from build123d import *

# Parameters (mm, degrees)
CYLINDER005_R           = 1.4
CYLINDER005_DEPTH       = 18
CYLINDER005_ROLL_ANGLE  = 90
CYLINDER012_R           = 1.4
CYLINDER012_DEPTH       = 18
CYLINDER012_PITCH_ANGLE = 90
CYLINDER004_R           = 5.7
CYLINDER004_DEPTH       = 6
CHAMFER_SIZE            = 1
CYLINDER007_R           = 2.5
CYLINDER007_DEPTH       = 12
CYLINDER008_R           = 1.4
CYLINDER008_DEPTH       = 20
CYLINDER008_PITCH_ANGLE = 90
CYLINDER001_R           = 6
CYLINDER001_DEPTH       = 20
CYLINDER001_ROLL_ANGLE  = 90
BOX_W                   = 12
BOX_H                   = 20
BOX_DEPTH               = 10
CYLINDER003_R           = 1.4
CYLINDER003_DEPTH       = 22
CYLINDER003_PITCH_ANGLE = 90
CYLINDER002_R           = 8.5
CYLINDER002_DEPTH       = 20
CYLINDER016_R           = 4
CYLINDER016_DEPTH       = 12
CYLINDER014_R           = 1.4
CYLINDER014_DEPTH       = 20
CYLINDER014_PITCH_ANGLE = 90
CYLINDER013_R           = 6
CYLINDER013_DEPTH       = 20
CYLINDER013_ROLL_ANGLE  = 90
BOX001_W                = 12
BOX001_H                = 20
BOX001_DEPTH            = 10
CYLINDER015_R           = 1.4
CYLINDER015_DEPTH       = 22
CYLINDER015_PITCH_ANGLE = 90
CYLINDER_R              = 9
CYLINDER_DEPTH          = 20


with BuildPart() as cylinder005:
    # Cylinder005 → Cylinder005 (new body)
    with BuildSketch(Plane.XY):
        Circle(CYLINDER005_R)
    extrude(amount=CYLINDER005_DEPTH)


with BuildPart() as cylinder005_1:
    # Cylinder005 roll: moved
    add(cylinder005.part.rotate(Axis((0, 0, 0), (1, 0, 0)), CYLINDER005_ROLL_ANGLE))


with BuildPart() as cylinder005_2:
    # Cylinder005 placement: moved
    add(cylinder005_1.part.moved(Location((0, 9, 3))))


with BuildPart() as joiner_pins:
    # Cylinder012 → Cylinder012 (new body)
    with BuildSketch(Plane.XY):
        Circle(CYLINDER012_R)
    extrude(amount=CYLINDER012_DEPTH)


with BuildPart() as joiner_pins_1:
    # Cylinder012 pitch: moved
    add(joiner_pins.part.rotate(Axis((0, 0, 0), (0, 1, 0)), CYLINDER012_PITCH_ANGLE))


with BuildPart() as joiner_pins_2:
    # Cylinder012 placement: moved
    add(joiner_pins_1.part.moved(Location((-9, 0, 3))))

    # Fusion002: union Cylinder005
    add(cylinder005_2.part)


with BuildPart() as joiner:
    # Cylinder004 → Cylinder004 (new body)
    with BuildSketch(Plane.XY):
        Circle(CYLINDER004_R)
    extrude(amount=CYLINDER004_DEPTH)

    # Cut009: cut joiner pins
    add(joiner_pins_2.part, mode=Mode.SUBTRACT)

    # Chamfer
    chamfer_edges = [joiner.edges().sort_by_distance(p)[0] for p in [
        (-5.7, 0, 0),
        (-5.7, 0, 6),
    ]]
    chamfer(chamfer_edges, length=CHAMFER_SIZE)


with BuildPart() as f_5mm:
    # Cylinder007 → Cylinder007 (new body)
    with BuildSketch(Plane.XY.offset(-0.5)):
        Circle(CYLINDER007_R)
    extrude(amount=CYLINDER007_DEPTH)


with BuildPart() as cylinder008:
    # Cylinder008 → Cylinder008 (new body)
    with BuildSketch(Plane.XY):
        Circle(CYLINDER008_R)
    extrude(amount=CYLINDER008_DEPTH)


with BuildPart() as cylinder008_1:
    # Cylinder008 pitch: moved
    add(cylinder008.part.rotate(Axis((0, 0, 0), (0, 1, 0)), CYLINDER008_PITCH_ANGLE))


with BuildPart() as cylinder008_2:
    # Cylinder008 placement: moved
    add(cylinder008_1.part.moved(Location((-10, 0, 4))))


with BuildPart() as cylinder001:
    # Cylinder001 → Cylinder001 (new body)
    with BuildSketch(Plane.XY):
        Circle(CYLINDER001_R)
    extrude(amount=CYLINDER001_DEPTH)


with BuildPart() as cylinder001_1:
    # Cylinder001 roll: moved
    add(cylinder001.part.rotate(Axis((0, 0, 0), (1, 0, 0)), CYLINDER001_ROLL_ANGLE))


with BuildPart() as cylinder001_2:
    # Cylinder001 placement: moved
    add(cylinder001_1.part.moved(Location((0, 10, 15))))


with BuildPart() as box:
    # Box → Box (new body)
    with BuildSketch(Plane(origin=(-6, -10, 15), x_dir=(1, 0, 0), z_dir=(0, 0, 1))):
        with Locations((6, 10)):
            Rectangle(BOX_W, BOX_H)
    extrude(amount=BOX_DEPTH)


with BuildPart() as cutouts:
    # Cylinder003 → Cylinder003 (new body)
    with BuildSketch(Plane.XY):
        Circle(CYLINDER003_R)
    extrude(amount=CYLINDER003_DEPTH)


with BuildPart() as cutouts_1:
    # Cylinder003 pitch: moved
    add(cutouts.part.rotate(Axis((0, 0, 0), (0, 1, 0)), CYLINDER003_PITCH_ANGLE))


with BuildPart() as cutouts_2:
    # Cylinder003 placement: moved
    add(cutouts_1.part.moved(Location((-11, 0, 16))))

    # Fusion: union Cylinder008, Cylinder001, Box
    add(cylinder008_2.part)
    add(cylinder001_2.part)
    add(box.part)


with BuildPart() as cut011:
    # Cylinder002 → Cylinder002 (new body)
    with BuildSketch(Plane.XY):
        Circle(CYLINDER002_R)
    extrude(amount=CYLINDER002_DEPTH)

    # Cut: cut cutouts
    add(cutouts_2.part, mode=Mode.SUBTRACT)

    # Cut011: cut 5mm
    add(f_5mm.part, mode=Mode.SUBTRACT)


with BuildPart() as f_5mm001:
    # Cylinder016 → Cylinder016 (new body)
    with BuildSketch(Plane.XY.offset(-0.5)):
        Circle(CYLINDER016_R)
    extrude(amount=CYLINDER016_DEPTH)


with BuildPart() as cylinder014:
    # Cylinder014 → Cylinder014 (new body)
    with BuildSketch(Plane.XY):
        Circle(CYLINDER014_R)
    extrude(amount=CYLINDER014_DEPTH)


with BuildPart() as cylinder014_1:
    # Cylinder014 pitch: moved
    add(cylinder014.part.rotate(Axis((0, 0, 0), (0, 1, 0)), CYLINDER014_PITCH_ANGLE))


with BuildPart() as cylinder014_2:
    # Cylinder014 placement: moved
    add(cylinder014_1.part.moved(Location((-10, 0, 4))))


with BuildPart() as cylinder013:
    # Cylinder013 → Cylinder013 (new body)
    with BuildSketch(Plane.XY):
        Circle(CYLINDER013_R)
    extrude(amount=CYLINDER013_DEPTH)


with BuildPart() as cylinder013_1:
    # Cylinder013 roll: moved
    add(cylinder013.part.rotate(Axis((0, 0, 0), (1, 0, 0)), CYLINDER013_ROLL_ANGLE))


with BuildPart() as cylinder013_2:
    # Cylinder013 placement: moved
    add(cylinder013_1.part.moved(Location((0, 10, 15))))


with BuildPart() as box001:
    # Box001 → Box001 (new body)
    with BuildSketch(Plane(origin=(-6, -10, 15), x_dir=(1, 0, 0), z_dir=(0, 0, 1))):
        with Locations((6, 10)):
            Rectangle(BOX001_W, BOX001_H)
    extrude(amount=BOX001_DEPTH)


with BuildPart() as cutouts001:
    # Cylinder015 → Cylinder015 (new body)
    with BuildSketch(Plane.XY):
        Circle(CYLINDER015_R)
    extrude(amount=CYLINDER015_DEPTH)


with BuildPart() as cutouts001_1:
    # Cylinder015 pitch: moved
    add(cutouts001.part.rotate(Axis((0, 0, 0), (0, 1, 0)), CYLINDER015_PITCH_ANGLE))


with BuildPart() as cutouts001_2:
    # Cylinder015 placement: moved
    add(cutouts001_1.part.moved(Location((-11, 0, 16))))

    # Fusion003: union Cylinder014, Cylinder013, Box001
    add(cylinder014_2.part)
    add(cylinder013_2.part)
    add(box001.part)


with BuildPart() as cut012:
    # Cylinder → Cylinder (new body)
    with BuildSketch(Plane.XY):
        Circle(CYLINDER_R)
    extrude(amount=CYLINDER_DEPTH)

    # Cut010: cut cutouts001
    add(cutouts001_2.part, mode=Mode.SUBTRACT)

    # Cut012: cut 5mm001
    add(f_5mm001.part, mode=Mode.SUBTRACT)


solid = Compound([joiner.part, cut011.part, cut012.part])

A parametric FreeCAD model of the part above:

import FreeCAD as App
import Part
import Sketcher

V = App.Vector


def edges_at(feature, points):
    """Names of the edges that pass closest to the given points."""
    edges = feature.Shape.Edges
    near = lambda p: min(range(len(edges)), key=lambda i: edges[i].distToShape(Part.Vertex(*p))[0])
    return sorted({f"Edge{near(p) + 1}" for p in points})


def add_polygon(sketch, points):
    """Adds a closed chain of lines whose ends are joined by coincident constraints."""
    first, n = sketch.GeometryCount, len(points)
    for a, b in zip(points, points[1:] + points[:1]):
        sketch.addGeometry(Part.LineSegment(App.Vector(*a, 0), App.Vector(*b, 0)), False)
    for i in range(n):
        sketch.addConstraint(Sketcher.Constraint("Coincident", first + i, 2, first + (i + 1) % n, 1))

doc = App.newDocument("Part")
body = doc.addObject("PartDesign::Body", "Body")

# Sketch on XY plane
sketch1 = doc.addObject("Sketcher::SketchObject", "Sketch")
body.addObject(sketch1)
sketch1.AttachmentSupport = (doc.XY_Plane, [""])
sketch1.MapMode = "FlatFace"
sketch1.addGeometry(Part.Circle(V(0, 0, 0), V(0, 0, 1), 1.4), False)
sketch1.addConstraint([
    Sketcher.Constraint("Coincident", 0, 3, -1, 1),
    Sketcher.Constraint("Diameter", 0, 2.8),
])
pad1 = doc.addObject("PartDesign::Pad", "Pad")
body.addObject(pad1)
pad1.Profile = sketch1
pad1.Length = 18
body2 = doc.addObject("PartDesign::Body", "Body001")
doc.recompute()

body.Placement = App.Placement(V(0, 0, 0), App.Rotation(V(1, 0, 0), 90))
boolean = doc.addObject("PartDesign::Boolean", "Boolean")
body2.addObject(boolean)
boolean.Type = "Fuse"
boolean.addObjects([body])
body3 = doc.addObject("PartDesign::Body", "Body002")
doc.recompute()

body2.Placement = App.Placement(V(0, 9, 3), App.Rotation(V(0, 0, 1), 0))
boolean2 = doc.addObject("PartDesign::Boolean", "Boolean001")
body3.addObject(boolean2)
boolean2.Type = "Fuse"
boolean2.addObjects([body2])
body4 = doc.addObject("PartDesign::Body", "Body003")

# Sketch on XY plane
sketch2 = doc.addObject("Sketcher::SketchObject", "Sketch001")
body4.addObject(sketch2)
sketch2.AttachmentSupport = (doc.getObject("XY_Plane003"), [""])
sketch2.MapMode = "FlatFace"
sketch2.addGeometry(Part.Circle(V(0, 0, 0), V(0, 0, 1), 1.4), False)
sketch2.addConstraint([
    Sketcher.Constraint("Coincident", 0, 3, -1, 1),
    Sketcher.Constraint("Diameter", 0, 2.8),
])
pad2 = doc.addObject("PartDesign::Pad", "Pad001")
body4.addObject(pad2)
pad2.Profile = sketch2
pad2.Length = 18
body5 = doc.addObject("PartDesign::Body", "Body004")
doc.recompute()

body4.Placement = App.Placement(V(0, 0, 0), App.Rotation(V(0, 1, 0), 90))
boolean3 = doc.addObject("PartDesign::Boolean", "Boolean002")
body5.addObject(boolean3)
boolean3.Type = "Fuse"
boolean3.addObjects([body4])
body6 = doc.addObject("PartDesign::Body", "Body005")
doc.recompute()

body5.Placement = App.Placement(V(-9, 0, 3), App.Rotation(V(0, 0, 1), 0))
boolean4 = doc.addObject("PartDesign::Boolean", "Boolean003")
body6.addObject(boolean4)
boolean4.Type = "Fuse"
boolean4.addObjects([body5])
doc.recompute()

boolean5 = doc.addObject("PartDesign::Boolean", "Boolean004")
body6.addObject(boolean5)
boolean5.Type = "Fuse"
boolean5.addObjects([body3])
body7 = doc.addObject("PartDesign::Body", "Body006")

# Sketch on XY plane
sketch3 = doc.addObject("Sketcher::SketchObject", "Sketch002")
body7.addObject(sketch3)
sketch3.AttachmentSupport = (doc.getObject("XY_Plane006"), [""])
sketch3.MapMode = "FlatFace"
sketch3.addGeometry(Part.Circle(V(0, 0, 0), V(0, 0, 1), 6), False)
sketch3.addConstraint([
    Sketcher.Constraint("Coincident", 0, 3, -1, 1),
    Sketcher.Constraint("Diameter", 0, 11.4),
])
pad3 = doc.addObject("PartDesign::Pad", "Pad002")
body7.addObject(pad3)
pad3.Profile = sketch3
pad3.Length = 6
doc.recompute()

boolean6 = doc.addObject("PartDesign::Boolean", "Boolean005")
body7.addObject(boolean6)
boolean6.Type = "Cut"
boolean6.addObjects([body6])
doc.recompute()

chamfer = doc.addObject("PartDesign::Chamfer", "Chamfer")
body7.addObject(chamfer)
chamfer.Base = (boolean6, edges_at(boolean6, [(-5.7, 0, 0), (-5.7, 0, 6)]))
chamfer.Size = 1
body8 = doc.addObject("PartDesign::Body", "Body007")

# Sketch on XY plane
sketch4 = doc.addObject("Sketcher::SketchObject", "Sketch003")
body8.addObject(sketch4)
sketch4.AttachmentSupport = (doc.getObject("XY_Plane007"), [""])
sketch4.MapMode = "FlatFace"
sketch4.AttachmentOffset = App.Placement(V(0, 0, -0.5), App.Rotation())
sketch4.addGeometry(Part.Circle(V(0, 0, 0), V(0, 0, 1), 2.5), False)
sketch4.addConstraint([
    Sketcher.Constraint("Coincident", 0, 3, -1, 1),
    Sketcher.Constraint("Diameter", 0, 5.0),
])
pad4 = doc.addObject("PartDesign::Pad", "Pad003")
body8.addObject(pad4)
pad4.Profile = sketch4
pad4.Length = 12
body9 = doc.addObject("PartDesign::Body", "Body008")

# Sketch on XY plane
sketch5 = doc.addObject("Sketcher::SketchObject", "Sketch004")
body9.addObject(sketch5)
sketch5.AttachmentSupport = (doc.getObject("XY_Plane008"), [""])
sketch5.MapMode = "FlatFace"
sketch5.addGeometry(Part.Circle(V(0, 0, 0), V(0, 0, 1), 1.4), False)
sketch5.addConstraint([
    Sketcher.Constraint("Coincident", 0, 3, -1, 1),
    Sketcher.Constraint("Diameter", 0, 2.8),
])
pad5 = doc.addObject("PartDesign::Pad", "Pad004")
body9.addObject(pad5)
pad5.Profile = sketch5
pad5.Length = 20
body10 = doc.addObject("PartDesign::Body", "Body009")
doc.recompute()

body9.Placement = App.Placement(V(0, 0, 0), App.Rotation(V(0, 1, 0), 90))
boolean7 = doc.addObject("PartDesign::Boolean", "Boolean006")
body10.addObject(boolean7)
boolean7.Type = "Fuse"
boolean7.addObjects([body9])
body11 = doc.addObject("PartDesign::Body", "Body010")
doc.recompute()

body10.Placement = App.Placement(V(-10, 0, 4), App.Rotation(V(0, 0, 1), 0))
boolean8 = doc.addObject("PartDesign::Boolean", "Boolean007")
body11.addObject(boolean8)
boolean8.Type = "Fuse"
boolean8.addObjects([body10])
body12 = doc.addObject("PartDesign::Body", "Body011")

# Sketch on XY plane
sketch6 = doc.addObject("Sketcher::SketchObject", "Sketch005")
body12.addObject(sketch6)
sketch6.AttachmentSupport = (doc.getObject("XY_Plane011"), [""])
sketch6.MapMode = "FlatFace"
sketch6.addGeometry(Part.Circle(V(0, 0, 0), V(0, 0, 1), 6), False)
sketch6.addConstraint([
    Sketcher.Constraint("Coincident", 0, 3, -1, 1),
    Sketcher.Constraint("Diameter", 0, 12.0),
])
pad6 = doc.addObject("PartDesign::Pad", "Pad005")
body12.addObject(pad6)
pad6.Profile = sketch6
pad6.Length = 20
body13 = doc.addObject("PartDesign::Body", "Body012")
doc.recompute()

body12.Placement = App.Placement(V(0, 0, 0), App.Rotation(V(1, 0, 0), 90))
boolean9 = doc.addObject("PartDesign::Boolean", "Boolean008")
body13.addObject(boolean9)
boolean9.Type = "Fuse"
boolean9.addObjects([body12])
body14 = doc.addObject("PartDesign::Body", "Body013")
doc.recompute()

body13.Placement = App.Placement(V(0, 10, 15), App.Rotation(V(0, 0, 1), 0))
boolean10 = doc.addObject("PartDesign::Boolean", "Boolean009")
body14.addObject(boolean10)
boolean10.Type = "Fuse"
boolean10.addObjects([body13])
body15 = doc.addObject("PartDesign::Body", "Body014")

# Sketch on XY plane
sketch7 = doc.addObject("Sketcher::SketchObject", "Sketch006")
body15.addObject(sketch7)
sketch7.AttachmentSupport = (doc.getObject("XY_Plane014"), [""])
sketch7.MapMode = "FlatFace"
sketch7.AttachmentOffset = App.Placement(V(0, 0, 15), App.Rotation())
add_polygon(sketch7, [(-6, 10), (-6, -10), (6, -10), (6, 10)])  # lines 0-3
sketch7.addConstraint([
    Sketcher.Constraint("Vertical", 0),
    Sketcher.Constraint("Horizontal", 1),
    Sketcher.Constraint("Vertical", 2),
    Sketcher.Constraint("Horizontal", 3),
    Sketcher.Constraint("Symmetric", 0, 2, 2, 2, -1, 1),
    Sketcher.Constraint("DistanceX", 1, 1, 1, 2, 12.0),
    Sketcher.Constraint("DistanceY", 0, 2, 0, 1, 20.0),
])
pad7 = doc.addObject("PartDesign::Pad", "Pad006")
body15.addObject(pad7)
pad7.Profile = sketch7
pad7.Length = 10
body16 = doc.addObject("PartDesign::Body", "Body015")

# Sketch on XY plane
sketch8 = doc.addObject("Sketcher::SketchObject", "Sketch007")
body16.addObject(sketch8)
sketch8.AttachmentSupport = (doc.getObject("XY_Plane015"), [""])
sketch8.MapMode = "FlatFace"
sketch8.addGeometry(Part.Circle(V(0, 0, 0), V(0, 0, 1), 1.4), False)
sketch8.addConstraint([
    Sketcher.Constraint("Coincident", 0, 3, -1, 1),
    Sketcher.Constraint("Diameter", 0, 2.8),
])
pad8 = doc.addObject("PartDesign::Pad", "Pad007")
body16.addObject(pad8)
pad8.Profile = sketch8
pad8.Length = 22
body17 = doc.addObject("PartDesign::Body", "Body016")
doc.recompute()

body16.Placement = App.Placement(V(0, 0, 0), App.Rotation(V(0, 1, 0), 90))
boolean11 = doc.addObject("PartDesign::Boolean", "Boolean010")
body17.addObject(boolean11)
boolean11.Type = "Fuse"
boolean11.addObjects([body16])
body18 = doc.addObject("PartDesign::Body", "Body017")
body18.AllowCompound = True
doc.recompute()

body17.Placement = App.Placement(V(-11, 0, 16), App.Rotation(V(0, 0, 1), 0))
boolean12 = doc.addObject("PartDesign::Boolean", "Boolean011")
body18.addObject(boolean12)
boolean12.Type = "Fuse"
boolean12.addObjects([body17])
doc.recompute()

boolean13 = doc.addObject("PartDesign::Boolean", "Boolean012")
body18.addObject(boolean13)
boolean13.Type = "Fuse"
boolean13.addObjects([body11])
doc.recompute()

boolean14 = doc.addObject("PartDesign::Boolean", "Boolean013")
body18.addObject(boolean14)
boolean14.Type = "Fuse"
boolean14.addObjects([body14])
doc.recompute()

boolean15 = doc.addObject("PartDesign::Boolean", "Boolean014")
body18.addObject(boolean15)
boolean15.Type = "Fuse"
boolean15.addObjects([body15])
body19 = doc.addObject("PartDesign::Body", "Body018")

# Sketch on XY plane
sketch9 = doc.addObject("Sketcher::SketchObject", "Sketch008")
body19.addObject(sketch9)
sketch9.AttachmentSupport = (doc.getObject("XY_Plane018"), [""])
sketch9.MapMode = "FlatFace"
sketch9.addGeometry(Part.Circle(V(0, 0, 0), V(0, 0, 1), 8), False)
sketch9.addConstraint([
    Sketcher.Constraint("Coincident", 0, 3, -1, 1),
    Sketcher.Constraint("Diameter", 0, 17.0),
])
pad9 = doc.addObject("PartDesign::Pad", "Pad008")
body19.addObject(pad9)
pad9.Profile = sketch9
pad9.Length = 20
doc.recompute()

boolean16 = doc.addObject("PartDesign::Boolean", "Boolean015")
body19.addObject(boolean16)
boolean16.Type = "Cut"
boolean16.addObjects([body18])
doc.recompute()

boolean17 = doc.addObject("PartDesign::Boolean", "Boolean016")
body19.addObject(boolean17)
boolean17.Type = "Cut"
boolean17.addObjects([body8])
body20 = doc.addObject("PartDesign::Body", "Body019")

# Sketch on XY plane
sketch10 = doc.addObject("Sketcher::SketchObject", "Sketch009")
body20.addObject(sketch10)
sketch10.AttachmentSupport = (doc.getObject("XY_Plane019"), [""])
sketch10.MapMode = "FlatFace"
sketch10.AttachmentOffset = App.Placement(V(0, 0, -0.5), App.Rotation())
sketch10.addGeometry(Part.Circle(V(0, 0, 0), V(0, 0, 1), 4), False)
sketch10.addConstraint([
    Sketcher.Constraint("Coincident", 0, 3, -1, 1),
    Sketcher.Constraint("Diameter", 0, 8.0),
])
pad10 = doc.addObject("PartDesign::Pad", "Pad009")
body20.addObject(pad10)
pad10.Profile = sketch10
pad10.Length = 12
body21 = doc.addObject("PartDesign::Body", "Body020")

# Sketch on XY plane
sketch11 = doc.addObject("Sketcher::SketchObject", "Sketch010")
body21.addObject(sketch11)
sketch11.AttachmentSupport = (doc.getObject("XY_Plane020"), [""])
sketch11.MapMode = "FlatFace"
sketch11.addGeometry(Part.Circle(V(0, 0, 0), V(0, 0, 1), 1.4), False)
sketch11.addConstraint([
    Sketcher.Constraint("Coincident", 0, 3, -1, 1),
    Sketcher.Constraint("Diameter", 0, 2.8),
])
pad11 = doc.addObject("PartDesign::Pad", "Pad010")
body21.addObject(pad11)
pad11.Profile = sketch11
pad11.Length = 20
body22 = doc.addObject("PartDesign::Body", "Body021")
doc.recompute()

body21.Placement = App.Placement(V(0, 0, 0), App.Rotation(V(0, 1, 0), 90))
boolean18 = doc.addObject("PartDesign::Boolean", "Boolean017")
body22.addObject(boolean18)
boolean18.Type = "Fuse"
boolean18.addObjects([body21])
body23 = doc.addObject("PartDesign::Body", "Body022")
doc.recompute()

body22.Placement = App.Placement(V(-10, 0, 4), App.Rotation(V(0, 0, 1), 0))
boolean19 = doc.addObject("PartDesign::Boolean", "Boolean018")
body23.addObject(boolean19)
boolean19.Type = "Fuse"
boolean19.addObjects([body22])
body24 = doc.addObject("PartDesign::Body", "Body023")

# Sketch on XY plane
sketch12 = doc.addObject("Sketcher::SketchObject", "Sketch011")
body24.addObject(sketch12)
sketch12.AttachmentSupport = (doc.getObject("XY_Plane023"), [""])
sketch12.MapMode = "FlatFace"
sketch12.addGeometry(Part.Circle(V(0, 0, 0), V(0, 0, 1), 6), False)
sketch12.addConstraint([
    Sketcher.Constraint("Coincident", 0, 3, -1, 1),
    Sketcher.Constraint("Diameter", 0, 12.0),
])
pad12 = doc.addObject("PartDesign::Pad", "Pad011")
body24.addObject(pad12)
pad12.Profile = sketch12
pad12.Length = 20
body25 = doc.addObject("PartDesign::Body", "Body024")
doc.recompute()

body24.Placement = App.Placement(V(0, 0, 0), App.Rotation(V(1, 0, 0), 90))
boolean20 = doc.addObject("PartDesign::Boolean", "Boolean019")
body25.addObject(boolean20)
boolean20.Type = "Fuse"
boolean20.addObjects([body24])
body26 = doc.addObject("PartDesign::Body", "Body025")
doc.recompute()

body25.Placement = App.Placement(V(0, 10, 15), App.Rotation(V(0, 0, 1), 0))
boolean21 = doc.addObject("PartDesign::Boolean", "Boolean020")
body26.addObject(boolean21)
boolean21.Type = "Fuse"
boolean21.addObjects([body25])
body27 = doc.addObject("PartDesign::Body", "Body026")

# Sketch on XY plane
sketch13 = doc.addObject("Sketcher::SketchObject", "Sketch012")
body27.addObject(sketch13)
sketch13.AttachmentSupport = (doc.getObject("XY_Plane026"), [""])
sketch13.MapMode = "FlatFace"
sketch13.AttachmentOffset = App.Placement(V(0, 0, 15), App.Rotation())
add_polygon(sketch13, [(-6, 10), (-6, -10), (6, -10), (6, 10)])  # lines 0-3
sketch13.addConstraint([
    Sketcher.Constraint("Vertical", 0),
    Sketcher.Constraint("Horizontal", 1),
    Sketcher.Constraint("Vertical", 2),
    Sketcher.Constraint("Horizontal", 3),
    Sketcher.Constraint("Symmetric", 0, 2, 2, 2, -1, 1),
    Sketcher.Constraint("DistanceX", 1, 1, 1, 2, 12.0),
    Sketcher.Constraint("DistanceY", 0, 2, 0, 1, 20.0),
])
pad13 = doc.addObject("PartDesign::Pad", "Pad012")
body27.addObject(pad13)
pad13.Profile = sketch13
pad13.Length = 10
body28 = doc.addObject("PartDesign::Body", "Body027")

# Sketch on XY plane
sketch14 = doc.addObject("Sketcher::SketchObject", "Sketch013")
body28.addObject(sketch14)
sketch14.AttachmentSupport = (doc.getObject("XY_Plane027"), [""])
sketch14.MapMode = "FlatFace"
sketch14.addGeometry(Part.Circle(V(0, 0, 0), V(0, 0, 1), 1.4), False)
sketch14.addConstraint([
    Sketcher.Constraint("Coincident", 0, 3, -1, 1),
    Sketcher.Constraint("Diameter", 0, 2.8),
])
pad14 = doc.addObject("PartDesign::Pad", "Pad013")
body28.addObject(pad14)
pad14.Profile = sketch14
pad14.Length = 22
body29 = doc.addObject("PartDesign::Body", "Body028")
doc.recompute()

body28.Placement = App.Placement(V(0, 0, 0), App.Rotation(V(0, 1, 0), 90))
boolean22 = doc.addObject("PartDesign::Boolean", "Boolean021")
body29.addObject(boolean22)
boolean22.Type = "Fuse"
boolean22.addObjects([body28])
body30 = doc.addObject("PartDesign::Body", "Body029")
body30.AllowCompound = True
doc.recompute()

body29.Placement = App.Placement(V(-11, 0, 16), App.Rotation(V(0, 0, 1), 0))
boolean23 = doc.addObject("PartDesign::Boolean", "Boolean022")
body30.addObject(boolean23)
boolean23.Type = "Fuse"
boolean23.addObjects([body29])
doc.recompute()

boolean24 = doc.addObject("PartDesign::Boolean", "Boolean023")
body30.addObject(boolean24)
boolean24.Type = "Fuse"
boolean24.addObjects([body23])
doc.recompute()

boolean25 = doc.addObject("PartDesign::Boolean", "Boolean024")
body30.addObject(boolean25)
boolean25.Type = "Fuse"
boolean25.addObjects([body26])
doc.recompute()

boolean26 = doc.addObject("PartDesign::Boolean", "Boolean025")
body30.addObject(boolean26)
boolean26.Type = "Fuse"
boolean26.addObjects([body27])
body31 = doc.addObject("PartDesign::Body", "Body030")

# Sketch on XY plane
sketch15 = doc.addObject("Sketcher::SketchObject", "Sketch014")
body31.addObject(sketch15)
sketch15.AttachmentSupport = (doc.getObject("XY_Plane030"), [""])
sketch15.MapMode = "FlatFace"
sketch15.addGeometry(Part.Circle(V(0, 0, 0), V(0, 0, 1), 9), False)
sketch15.addConstraint([
    Sketcher.Constraint("Coincident", 0, 3, -1, 1),
    Sketcher.Constraint("Diameter", 0, 18.0),
])
pad15 = doc.addObject("PartDesign::Pad", "Pad014")
body31.addObject(pad15)
pad15.Profile = sketch15
pad15.Length = 20
doc.recompute()

boolean27 = doc.addObject("PartDesign::Boolean", "Boolean026")
body31.addObject(boolean27)
boolean27.Type = "Cut"
boolean27.addObjects([body30])
doc.recompute()

boolean28 = doc.addObject("PartDesign::Boolean", "Boolean027")
body31.addObject(boolean28)
boolean28.Type = "Cut"
boolean28.addObjects([body20])

doc.recompute()
